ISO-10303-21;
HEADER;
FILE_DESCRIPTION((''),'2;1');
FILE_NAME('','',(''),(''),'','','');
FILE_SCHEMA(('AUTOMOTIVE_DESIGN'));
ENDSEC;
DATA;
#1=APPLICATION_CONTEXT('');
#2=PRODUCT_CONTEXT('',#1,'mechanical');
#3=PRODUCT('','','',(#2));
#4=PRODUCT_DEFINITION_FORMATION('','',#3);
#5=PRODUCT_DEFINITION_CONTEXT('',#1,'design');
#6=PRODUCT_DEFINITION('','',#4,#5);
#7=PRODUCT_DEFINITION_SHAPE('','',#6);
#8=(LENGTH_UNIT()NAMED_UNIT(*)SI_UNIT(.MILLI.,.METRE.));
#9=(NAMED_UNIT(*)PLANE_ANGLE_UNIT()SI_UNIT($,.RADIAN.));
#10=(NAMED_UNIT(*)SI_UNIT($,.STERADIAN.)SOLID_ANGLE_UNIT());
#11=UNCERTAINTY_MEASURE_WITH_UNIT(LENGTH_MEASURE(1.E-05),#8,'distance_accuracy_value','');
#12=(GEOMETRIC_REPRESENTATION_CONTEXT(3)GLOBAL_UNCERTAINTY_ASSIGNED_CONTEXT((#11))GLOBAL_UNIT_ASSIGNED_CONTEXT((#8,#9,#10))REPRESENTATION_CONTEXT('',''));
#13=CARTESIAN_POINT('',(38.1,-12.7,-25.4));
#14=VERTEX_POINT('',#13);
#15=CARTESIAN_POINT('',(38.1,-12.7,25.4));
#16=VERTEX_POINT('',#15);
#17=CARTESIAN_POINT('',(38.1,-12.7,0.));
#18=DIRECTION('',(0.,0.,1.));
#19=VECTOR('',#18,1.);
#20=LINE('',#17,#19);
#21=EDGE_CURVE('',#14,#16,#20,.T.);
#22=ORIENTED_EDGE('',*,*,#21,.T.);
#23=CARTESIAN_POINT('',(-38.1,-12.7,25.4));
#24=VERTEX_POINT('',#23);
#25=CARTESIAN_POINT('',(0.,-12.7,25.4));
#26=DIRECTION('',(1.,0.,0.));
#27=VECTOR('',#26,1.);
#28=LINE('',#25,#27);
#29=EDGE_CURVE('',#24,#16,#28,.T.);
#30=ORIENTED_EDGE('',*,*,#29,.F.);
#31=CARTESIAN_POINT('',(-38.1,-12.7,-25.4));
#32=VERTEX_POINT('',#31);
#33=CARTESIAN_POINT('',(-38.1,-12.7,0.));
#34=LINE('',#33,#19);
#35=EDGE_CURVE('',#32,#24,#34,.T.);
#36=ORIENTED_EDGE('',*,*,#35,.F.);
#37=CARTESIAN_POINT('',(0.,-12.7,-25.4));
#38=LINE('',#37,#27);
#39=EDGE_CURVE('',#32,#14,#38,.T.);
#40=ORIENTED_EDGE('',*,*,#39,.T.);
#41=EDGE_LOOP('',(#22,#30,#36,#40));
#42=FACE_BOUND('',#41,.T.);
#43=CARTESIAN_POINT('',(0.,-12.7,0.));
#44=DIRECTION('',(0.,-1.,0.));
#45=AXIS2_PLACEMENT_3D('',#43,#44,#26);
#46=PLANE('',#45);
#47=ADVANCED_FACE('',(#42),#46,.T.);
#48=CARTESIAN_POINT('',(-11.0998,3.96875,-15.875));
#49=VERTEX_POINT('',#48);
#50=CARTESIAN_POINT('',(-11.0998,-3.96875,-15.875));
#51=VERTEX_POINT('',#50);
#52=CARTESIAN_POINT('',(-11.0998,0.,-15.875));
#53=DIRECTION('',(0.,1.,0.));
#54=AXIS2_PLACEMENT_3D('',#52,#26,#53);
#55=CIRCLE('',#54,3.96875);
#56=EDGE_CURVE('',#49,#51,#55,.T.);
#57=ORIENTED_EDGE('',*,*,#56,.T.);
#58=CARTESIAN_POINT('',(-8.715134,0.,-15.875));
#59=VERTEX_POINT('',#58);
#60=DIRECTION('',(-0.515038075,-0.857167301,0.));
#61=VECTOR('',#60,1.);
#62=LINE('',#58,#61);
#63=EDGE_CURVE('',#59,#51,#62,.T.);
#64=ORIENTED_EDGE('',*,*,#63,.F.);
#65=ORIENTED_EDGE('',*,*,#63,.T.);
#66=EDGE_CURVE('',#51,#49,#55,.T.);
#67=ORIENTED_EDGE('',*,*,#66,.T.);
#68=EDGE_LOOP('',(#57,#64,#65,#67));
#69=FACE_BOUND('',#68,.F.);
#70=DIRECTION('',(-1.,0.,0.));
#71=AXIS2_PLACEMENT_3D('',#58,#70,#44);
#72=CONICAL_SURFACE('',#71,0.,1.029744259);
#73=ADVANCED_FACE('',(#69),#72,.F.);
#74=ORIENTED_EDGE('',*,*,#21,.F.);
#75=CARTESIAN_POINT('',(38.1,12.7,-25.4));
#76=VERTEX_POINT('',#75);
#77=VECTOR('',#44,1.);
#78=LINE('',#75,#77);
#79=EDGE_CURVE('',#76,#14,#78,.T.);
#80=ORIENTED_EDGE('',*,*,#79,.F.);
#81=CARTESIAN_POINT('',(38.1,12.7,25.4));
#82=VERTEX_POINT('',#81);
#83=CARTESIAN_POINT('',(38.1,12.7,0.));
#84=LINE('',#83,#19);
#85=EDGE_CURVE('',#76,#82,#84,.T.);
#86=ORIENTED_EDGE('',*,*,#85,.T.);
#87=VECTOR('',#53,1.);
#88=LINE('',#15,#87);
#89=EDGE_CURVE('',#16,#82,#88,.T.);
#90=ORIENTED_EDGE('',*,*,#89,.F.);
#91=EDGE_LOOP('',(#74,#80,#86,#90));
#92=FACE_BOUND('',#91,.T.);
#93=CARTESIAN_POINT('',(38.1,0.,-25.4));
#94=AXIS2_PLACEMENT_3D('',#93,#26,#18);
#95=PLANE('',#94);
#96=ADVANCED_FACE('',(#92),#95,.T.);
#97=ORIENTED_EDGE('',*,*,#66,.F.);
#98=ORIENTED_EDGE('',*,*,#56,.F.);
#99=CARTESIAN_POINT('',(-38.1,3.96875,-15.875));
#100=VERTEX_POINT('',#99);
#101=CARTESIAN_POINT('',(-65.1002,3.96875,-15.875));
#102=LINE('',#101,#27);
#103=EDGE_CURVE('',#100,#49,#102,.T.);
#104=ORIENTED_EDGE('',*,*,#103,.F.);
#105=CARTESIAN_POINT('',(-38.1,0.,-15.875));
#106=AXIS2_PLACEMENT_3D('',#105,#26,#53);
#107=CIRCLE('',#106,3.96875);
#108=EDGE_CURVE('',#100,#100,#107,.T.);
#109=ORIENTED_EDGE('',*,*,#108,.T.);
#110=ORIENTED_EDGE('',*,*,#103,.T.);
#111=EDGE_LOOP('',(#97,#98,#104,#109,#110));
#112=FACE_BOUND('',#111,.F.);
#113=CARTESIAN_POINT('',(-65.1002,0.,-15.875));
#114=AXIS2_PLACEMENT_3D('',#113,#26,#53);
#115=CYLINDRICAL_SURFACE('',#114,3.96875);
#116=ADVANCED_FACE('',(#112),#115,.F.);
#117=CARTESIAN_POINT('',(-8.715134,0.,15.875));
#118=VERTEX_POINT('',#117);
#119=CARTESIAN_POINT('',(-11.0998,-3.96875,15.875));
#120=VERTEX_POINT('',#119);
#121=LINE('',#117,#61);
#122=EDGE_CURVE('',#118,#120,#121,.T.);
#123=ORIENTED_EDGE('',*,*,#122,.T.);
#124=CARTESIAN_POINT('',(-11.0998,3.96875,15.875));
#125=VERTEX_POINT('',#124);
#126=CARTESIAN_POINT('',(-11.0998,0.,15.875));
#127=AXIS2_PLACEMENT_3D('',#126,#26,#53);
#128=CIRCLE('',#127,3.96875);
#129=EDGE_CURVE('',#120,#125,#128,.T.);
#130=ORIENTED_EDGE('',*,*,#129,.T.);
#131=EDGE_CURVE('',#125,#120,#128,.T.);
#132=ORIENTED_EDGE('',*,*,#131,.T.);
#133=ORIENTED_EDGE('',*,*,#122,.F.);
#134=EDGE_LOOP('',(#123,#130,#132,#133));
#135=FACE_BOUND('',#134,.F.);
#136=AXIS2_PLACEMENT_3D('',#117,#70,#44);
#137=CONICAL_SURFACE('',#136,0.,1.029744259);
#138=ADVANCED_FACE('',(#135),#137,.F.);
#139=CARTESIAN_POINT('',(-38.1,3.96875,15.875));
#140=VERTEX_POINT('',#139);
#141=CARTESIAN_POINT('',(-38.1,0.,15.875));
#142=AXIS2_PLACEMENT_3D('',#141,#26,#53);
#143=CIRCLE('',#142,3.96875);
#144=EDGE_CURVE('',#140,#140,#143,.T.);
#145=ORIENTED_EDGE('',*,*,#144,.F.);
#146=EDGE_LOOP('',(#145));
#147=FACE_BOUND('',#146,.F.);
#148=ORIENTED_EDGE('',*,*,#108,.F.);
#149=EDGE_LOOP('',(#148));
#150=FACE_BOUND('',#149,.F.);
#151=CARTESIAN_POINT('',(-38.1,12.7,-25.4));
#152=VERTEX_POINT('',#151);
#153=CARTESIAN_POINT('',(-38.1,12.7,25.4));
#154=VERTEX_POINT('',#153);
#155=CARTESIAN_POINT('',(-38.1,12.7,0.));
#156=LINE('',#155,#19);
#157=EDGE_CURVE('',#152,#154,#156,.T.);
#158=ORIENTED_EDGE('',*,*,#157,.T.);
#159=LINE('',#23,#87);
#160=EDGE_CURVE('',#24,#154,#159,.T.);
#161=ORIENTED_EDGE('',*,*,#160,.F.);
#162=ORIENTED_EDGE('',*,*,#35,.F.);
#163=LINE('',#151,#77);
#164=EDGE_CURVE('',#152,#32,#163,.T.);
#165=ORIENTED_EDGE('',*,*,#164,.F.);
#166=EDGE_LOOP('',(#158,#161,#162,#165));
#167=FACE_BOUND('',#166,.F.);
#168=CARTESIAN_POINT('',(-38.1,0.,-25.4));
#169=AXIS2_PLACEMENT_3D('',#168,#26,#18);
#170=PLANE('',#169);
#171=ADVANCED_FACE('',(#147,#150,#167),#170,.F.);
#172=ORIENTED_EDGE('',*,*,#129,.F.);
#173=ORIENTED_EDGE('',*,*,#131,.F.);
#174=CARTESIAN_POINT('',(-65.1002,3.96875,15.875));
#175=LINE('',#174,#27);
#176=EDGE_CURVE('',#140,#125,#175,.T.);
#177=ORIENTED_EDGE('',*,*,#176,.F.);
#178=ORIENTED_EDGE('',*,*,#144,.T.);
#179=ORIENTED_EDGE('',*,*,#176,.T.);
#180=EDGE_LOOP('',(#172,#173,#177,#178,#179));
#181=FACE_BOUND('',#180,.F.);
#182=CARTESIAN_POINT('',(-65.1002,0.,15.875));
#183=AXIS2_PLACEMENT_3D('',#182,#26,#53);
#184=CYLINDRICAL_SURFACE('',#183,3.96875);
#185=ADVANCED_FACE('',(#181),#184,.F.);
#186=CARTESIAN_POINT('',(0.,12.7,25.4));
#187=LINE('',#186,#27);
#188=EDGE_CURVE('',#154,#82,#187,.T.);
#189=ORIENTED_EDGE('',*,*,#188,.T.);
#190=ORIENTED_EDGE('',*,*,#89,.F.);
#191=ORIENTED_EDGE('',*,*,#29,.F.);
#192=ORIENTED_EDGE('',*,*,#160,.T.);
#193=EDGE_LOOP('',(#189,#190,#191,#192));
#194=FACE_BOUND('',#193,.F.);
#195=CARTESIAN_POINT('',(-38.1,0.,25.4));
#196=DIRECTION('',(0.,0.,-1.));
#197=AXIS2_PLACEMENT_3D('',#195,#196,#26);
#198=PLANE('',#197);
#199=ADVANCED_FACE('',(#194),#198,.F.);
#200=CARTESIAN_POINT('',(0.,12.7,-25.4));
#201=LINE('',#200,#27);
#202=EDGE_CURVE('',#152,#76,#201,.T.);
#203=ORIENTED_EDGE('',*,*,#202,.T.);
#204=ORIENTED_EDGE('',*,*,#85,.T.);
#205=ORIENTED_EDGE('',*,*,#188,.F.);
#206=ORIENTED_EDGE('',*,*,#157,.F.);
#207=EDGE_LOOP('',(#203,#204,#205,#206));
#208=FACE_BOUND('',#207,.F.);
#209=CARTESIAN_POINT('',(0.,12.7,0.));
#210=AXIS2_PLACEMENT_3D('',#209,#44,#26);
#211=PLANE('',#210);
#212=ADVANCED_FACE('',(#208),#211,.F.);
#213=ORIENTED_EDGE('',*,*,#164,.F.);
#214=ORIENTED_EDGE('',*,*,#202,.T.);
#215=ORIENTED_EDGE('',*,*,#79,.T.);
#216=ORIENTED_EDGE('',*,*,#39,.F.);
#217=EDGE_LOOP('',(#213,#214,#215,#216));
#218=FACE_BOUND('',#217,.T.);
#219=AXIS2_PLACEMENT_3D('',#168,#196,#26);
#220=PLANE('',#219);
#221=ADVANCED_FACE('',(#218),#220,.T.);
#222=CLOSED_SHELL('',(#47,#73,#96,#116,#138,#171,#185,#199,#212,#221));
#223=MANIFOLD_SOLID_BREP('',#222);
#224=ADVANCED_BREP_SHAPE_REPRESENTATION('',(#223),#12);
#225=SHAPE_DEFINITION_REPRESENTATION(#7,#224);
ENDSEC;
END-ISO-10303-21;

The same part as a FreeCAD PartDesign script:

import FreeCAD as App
import Part
import Sketcher

V = App.Vector
Q = App.Units.Quantity

doc = App.newDocument("Part")
body = doc.addObject("PartDesign::Body", "Body")

# Sketch on XZ plane
sketch1 = doc.addObject("Sketcher::SketchObject", "Sketch")
body.addObject(sketch1)
sketch1.AttachmentSupport = (doc.XZ_Plane, [""])
sketch1.MapMode = "FlatFace"
sketch1.addGeometry(Part.LineSegment(V(-38, 25, 0), V(-38, -25, 0)), False)
sketch1.addGeometry(Part.LineSegment(V(-38, -25, 0), V(38, -25, 0)), False)
sketch1.addGeometry(Part.LineSegment(V(38, -25, 0), V(38, 25, 0)), False)
sketch1.addGeometry(Part.LineSegment(V(38, 25, 0), V(-38, 25, 0)), False)
sketch1.addConstraint(Sketcher.Constraint("Coincident", 0, 2, 1, 1))
sketch1.addConstraint(Sketcher.Constraint("Coincident", 1, 2, 2, 1))
sketch1.addConstraint(Sketcher.Constraint("Coincident", 2, 2, 3, 1))
sketch1.addConstraint(Sketcher.Constraint("Coincident", 3, 2, 0, 1))
sketch1.addConstraint(Sketcher.Constraint("Vertical", 0))
sketch1.addConstraint(Sketcher.Constraint("Horizontal", 1))
sketch1.addConstraint(Sketcher.Constraint("Vertical", 2))
sketch1.addConstraint(Sketcher.Constraint("Horizontal", 3))
sketch1.addConstraint(Sketcher.Constraint("Symmetric", 0, 2, 2, 2, -1, 1))
sketch1.addConstraint(Sketcher.Constraint("DistanceX", 1, 1, 1, 2, Q("3 in")))
sketch1.addConstraint(Sketcher.Constraint("DistanceY", 0, 2, 0, 1, Q("2 in")))
pad1 = doc.addObject("PartDesign::Pad", "Pad")
body.addObject(pad1)
pad1.Profile = sketch1
pad1.Length = Q("1 in")
pad1.Midplane = True

# Sketch on YZ plane
sketch2 = doc.addObject("Sketcher::SketchObject", "Sketch001")
body.addObject(sketch2)
sketch2.AttachmentSupport = (doc.YZ_Plane, [""])
sketch2.MapMode = "FlatFace"
sketch2.AttachmentOffset = App.Placement(V(0, 0, -1.5 * 25.4), App.Rotation())
sketch2.addGeometry(Part.Circle(V(0, 15.9, 0), V(0, 0, 1), 4), False)
sketch2.addGeometry(Part.Circle(V(0, -15.9, 0), V(0, 0, 1), 4), False)
sketch2.addConstraint(Sketcher.Constraint("Equal", 0, 1))
sketch2.addConstraint(Sketcher.Constraint("Symmetric", 0, 3, 1, 3, -1, 1))
sketch2.addConstraint(Sketcher.Constraint("PointOnObject", 0, 3, -2))
sketch2.addConstraint(Sketcher.Constraint("Diameter", 0, Q("0.3125 in")))
sketch2.addConstraint(Sketcher.Constraint("DistanceY", 1, 3, 0, 3, Q("1.25 in")))
doc.recompute()
hole = doc.addObject("PartDesign::Hole", "Hole")
body.addObject(hole)
hole.Profile = sketch2
hole.ThreadType = "None"
hole.Diameter = Q("0.3125 in")
hole.DepthType = "Dimension"
hole.Depth = Q("1.063 in")
hole.DrillPoint = "Angled"
hole.DrillPointAngle = 118
hole.Reversed = True

doc.recompute()
